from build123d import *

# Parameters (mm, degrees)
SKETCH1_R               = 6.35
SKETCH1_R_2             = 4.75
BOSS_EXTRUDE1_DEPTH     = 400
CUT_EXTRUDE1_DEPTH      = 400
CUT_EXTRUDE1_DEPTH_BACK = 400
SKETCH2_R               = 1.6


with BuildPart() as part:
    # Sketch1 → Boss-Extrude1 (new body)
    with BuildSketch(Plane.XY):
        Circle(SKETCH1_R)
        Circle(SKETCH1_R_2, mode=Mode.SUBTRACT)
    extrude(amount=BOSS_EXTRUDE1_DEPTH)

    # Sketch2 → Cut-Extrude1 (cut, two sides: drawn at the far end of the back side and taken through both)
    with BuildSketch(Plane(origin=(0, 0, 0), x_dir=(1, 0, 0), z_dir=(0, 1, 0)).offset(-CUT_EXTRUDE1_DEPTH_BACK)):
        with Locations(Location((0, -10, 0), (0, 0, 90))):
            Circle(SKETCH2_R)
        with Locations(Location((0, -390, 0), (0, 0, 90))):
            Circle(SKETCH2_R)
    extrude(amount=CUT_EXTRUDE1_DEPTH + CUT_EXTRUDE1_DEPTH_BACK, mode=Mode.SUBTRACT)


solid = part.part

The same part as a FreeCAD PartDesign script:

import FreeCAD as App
import Part
import Sketcher

V = App.Vector

doc = App.newDocument("Part")
body = doc.addObject("PartDesign::Body", "Body")

# Sketch on XY plane
sketch1 = body.newObject("Sketcher::SketchObject", "Sketch")
sketch1.AttachmentSupport = (doc.getObject("XY_Plane"), [""])
sketch1.MapMode = "FlatFace"
sketch1.addGeometry([
    Part.Circle(V(0, 0, 0), V(0, 0, 1), 6.3),
    Part.Circle(V(0, 0, 0), V(0, 0, 1), 4.8),
], False)
sketch1.addConstraint([
    Sketcher.Constraint("Coincident", 0, 3, -1, 1),
    Sketcher.Constraint("Coincident", 1, 3, -1, 1),
    Sketcher.Constraint("Diameter", 0, 12.7),
    Sketcher.Constraint("Diameter", 1, 9.5),
])
pad1 = body.newObject("PartDesign::Pad", "Pad")
pad1.Profile = sketch1
pad1.Length = 400

# Sketch on XZ plane
sketch2 = body.newObject("Sketcher::SketchObject", "Sketch001")
sketch2.AttachmentSupport = (doc.getObject("XZ_Plane"), [""])
sketch2.MapMode = "FlatFace"
sketch2.addGeometry([
    Part.Circle(V(0, 10, 0), V(0, 0, 1), 1.6),
    Part.Circle(V(0, 390, 0), V(0, 0, 1), 1.6),
], False)
sketch2.addConstraint([
    Sketcher.Constraint("Equal", 0, 1),
    Sketcher.Constraint("PointOnObject", 0, 3, -2),
    Sketcher.Constraint("PointOnObject", 1, 3, -2),
    Sketcher.Constraint("Diameter", 0, 3.2),
    Sketcher.Constraint("DistanceY", -1, 1, 0, 3, 10.0),
    Sketcher.Constraint("DistanceY", -1, 1, 1, 3, 390.0),
])
pocket1 = body.newObject("PartDesign::Pocket", "Pocket")
pocket1.Profile = sketch2
pocket1.Type = "ThroughAll"
pocket1.Midplane = True

doc.recompute()
